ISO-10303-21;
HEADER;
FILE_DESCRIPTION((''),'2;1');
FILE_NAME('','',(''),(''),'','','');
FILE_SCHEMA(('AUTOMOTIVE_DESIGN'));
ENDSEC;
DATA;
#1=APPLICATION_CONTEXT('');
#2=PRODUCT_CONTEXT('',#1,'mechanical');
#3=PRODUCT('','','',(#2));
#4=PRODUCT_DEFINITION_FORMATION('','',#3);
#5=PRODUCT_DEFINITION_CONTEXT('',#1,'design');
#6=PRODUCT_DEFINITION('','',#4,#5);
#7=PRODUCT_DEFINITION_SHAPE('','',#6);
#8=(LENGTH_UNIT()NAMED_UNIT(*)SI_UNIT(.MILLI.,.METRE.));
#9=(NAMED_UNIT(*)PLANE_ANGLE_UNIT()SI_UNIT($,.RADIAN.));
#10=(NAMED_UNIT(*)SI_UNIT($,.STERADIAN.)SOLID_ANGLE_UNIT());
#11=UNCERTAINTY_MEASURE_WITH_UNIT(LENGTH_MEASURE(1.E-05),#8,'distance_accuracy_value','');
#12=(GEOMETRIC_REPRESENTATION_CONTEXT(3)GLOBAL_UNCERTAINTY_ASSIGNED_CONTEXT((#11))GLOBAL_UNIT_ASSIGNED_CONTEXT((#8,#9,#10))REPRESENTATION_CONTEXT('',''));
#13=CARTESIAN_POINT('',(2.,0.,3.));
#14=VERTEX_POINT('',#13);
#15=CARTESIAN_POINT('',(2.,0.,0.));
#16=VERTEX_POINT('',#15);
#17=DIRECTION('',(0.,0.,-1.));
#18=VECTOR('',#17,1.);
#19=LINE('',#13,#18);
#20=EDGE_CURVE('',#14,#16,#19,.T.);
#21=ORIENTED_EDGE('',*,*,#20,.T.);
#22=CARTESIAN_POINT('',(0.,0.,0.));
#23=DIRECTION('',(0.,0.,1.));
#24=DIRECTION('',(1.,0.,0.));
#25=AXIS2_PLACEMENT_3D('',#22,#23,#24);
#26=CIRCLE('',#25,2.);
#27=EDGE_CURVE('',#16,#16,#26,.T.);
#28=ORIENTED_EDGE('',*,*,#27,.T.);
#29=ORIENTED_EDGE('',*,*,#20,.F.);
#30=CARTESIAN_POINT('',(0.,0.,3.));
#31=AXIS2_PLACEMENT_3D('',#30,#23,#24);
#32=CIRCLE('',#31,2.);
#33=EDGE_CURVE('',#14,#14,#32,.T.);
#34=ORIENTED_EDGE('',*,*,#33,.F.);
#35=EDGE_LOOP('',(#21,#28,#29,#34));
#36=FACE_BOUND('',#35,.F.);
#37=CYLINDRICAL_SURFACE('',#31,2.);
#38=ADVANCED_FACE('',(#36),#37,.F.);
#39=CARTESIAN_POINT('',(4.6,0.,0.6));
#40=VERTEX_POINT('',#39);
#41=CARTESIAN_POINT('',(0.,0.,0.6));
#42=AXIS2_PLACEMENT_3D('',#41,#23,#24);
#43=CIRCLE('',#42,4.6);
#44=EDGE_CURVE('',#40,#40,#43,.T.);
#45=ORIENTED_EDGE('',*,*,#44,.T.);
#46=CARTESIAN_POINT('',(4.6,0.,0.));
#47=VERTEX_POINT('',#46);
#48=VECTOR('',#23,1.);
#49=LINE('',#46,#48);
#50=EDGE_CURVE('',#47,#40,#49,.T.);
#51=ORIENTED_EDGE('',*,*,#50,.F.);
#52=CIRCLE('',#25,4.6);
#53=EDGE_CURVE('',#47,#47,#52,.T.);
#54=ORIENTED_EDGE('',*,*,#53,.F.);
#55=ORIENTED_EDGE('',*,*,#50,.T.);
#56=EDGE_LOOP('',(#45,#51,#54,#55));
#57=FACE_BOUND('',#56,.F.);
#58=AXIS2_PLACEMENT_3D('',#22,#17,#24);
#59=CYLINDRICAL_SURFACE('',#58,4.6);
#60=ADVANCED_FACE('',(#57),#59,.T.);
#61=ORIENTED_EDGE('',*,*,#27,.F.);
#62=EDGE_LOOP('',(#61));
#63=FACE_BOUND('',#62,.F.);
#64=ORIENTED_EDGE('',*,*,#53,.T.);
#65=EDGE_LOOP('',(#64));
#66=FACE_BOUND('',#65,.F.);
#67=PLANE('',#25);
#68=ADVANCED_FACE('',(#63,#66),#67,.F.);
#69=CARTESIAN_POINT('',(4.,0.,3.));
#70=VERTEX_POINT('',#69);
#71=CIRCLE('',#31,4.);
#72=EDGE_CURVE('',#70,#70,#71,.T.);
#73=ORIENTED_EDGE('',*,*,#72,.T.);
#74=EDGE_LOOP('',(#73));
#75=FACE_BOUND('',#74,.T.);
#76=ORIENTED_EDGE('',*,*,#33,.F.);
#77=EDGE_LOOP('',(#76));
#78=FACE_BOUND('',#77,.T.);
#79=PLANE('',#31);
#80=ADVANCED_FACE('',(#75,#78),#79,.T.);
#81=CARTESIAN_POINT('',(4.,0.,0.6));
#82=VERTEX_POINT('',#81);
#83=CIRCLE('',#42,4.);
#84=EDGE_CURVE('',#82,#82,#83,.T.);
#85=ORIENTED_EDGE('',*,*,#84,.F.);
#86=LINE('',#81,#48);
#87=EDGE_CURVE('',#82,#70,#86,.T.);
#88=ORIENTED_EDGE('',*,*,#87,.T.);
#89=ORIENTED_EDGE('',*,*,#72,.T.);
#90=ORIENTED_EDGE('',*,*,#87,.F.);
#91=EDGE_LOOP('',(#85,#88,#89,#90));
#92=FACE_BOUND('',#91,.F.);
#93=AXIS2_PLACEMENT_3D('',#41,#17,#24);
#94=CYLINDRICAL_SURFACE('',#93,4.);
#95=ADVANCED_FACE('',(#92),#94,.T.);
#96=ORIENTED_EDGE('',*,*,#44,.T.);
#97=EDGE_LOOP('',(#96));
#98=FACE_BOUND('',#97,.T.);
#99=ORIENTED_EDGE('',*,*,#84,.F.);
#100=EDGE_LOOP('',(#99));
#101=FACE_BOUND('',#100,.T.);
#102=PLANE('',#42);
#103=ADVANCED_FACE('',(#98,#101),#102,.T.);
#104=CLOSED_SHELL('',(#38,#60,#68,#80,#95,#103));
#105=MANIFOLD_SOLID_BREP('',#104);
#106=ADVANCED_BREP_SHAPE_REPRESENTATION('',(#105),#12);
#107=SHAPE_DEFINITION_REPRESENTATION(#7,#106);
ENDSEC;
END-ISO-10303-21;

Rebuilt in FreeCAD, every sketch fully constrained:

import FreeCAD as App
import Part
import Sketcher

doc = App.newDocument("Part")
params = doc.addObject("Spreadsheet::Sheet", "Params")
for row, (alias, value) in enumerate([
    ("sketch1_diameter", "9.2 mm"),
    ("pad1_length", "0.6 mm"),
    ("sketch2_diameter", "8 mm"),
    ("pad2_length", "2.4 mm"),
    ("sketch3_diameter", "4 mm"),
], start=1):
    params.set(f"A{row}", alias)
    params.set(f"B{row}", "=" + value)
    params.setAlias(f"B{row}", alias)

body = doc.addObject("PartDesign::Body", "Body")

# Sketch on XY plane
sketch1 = body.newObject("Sketcher::SketchObject", "Sketch")
sketch1.AttachmentSupport = (doc.getObject("XY_Plane"), [""])
sketch1.MapMode = "FlatFace"
sketch1.addGeometry(Part.Circle(App.Vector(0, 0, 0), App.Vector(0, 0, 1), 4.6), False)
sketch1.addConstraint(Sketcher.Constraint("Coincident", 0, 3, -1, 1))
sketch1.addConstraint(Sketcher.Constraint("Diameter", 0, 9.2))
sketch1.setExpression("Constraints[1]", "Params.sketch1_diameter")
pad1 = body.newObject("PartDesign::Pad", "Pad")
pad1.Profile = sketch1
pad1.setExpression("Length", "Params.pad1_length")

# Sketch on XY plane
sketch2 = body.newObject("Sketcher::SketchObject", "Sketch001")
sketch2.AttachmentSupport = (doc.getObject("XY_Plane"), [""])
sketch2.MapMode = "FlatFace"
sketch2.AttachmentOffset = App.Placement(App.Vector(0, 0, 0.6), App.Rotation())
sketch2.addGeometry(Part.Circle(App.Vector(0, 0, 0), App.Vector(0, 0, 1), 4), False)
sketch2.addConstraint(Sketcher.Constraint("Coincident", 0, 3, -1, 1))
sketch2.addConstraint(Sketcher.Constraint("Diameter", 0, 8.0))
sketch2.setExpression("Constraints[1]", "Params.sketch2_diameter")
pad2 = body.newObject("PartDesign::Pad", "Pad001")
pad2.Profile = sketch2
pad2.setExpression("Length", "Params.pad2_length")

# Sketch on XY plane
sketch3 = body.newObject("Sketcher::SketchObject", "Sketch002")
sketch3.AttachmentSupport = (doc.getObject("XY_Plane"), [""])
sketch3.MapMode = "FlatFace"
sketch3.AttachmentOffset = App.Placement(App.Vector(0, 0, 3), App.Rotation())
sketch3.addGeometry(Part.Circle(App.Vector(0, 0, 0), App.Vector(0, 0, 1), 2), False)
sketch3.addConstraint(Sketcher.Constraint("Coincident", 0, 3, -1, 1))
sketch3.addConstraint(Sketcher.Constraint("Diameter", 0, 4.0))
sketch3.setExpression("Constraints[1]", "Params.sketch3_diameter")
pocket1 = body.newObject("PartDesign::Pocket", "Pocket")
pocket1.Profile = sketch3
pocket1.Type = "ThroughAll"

doc.recompute()
